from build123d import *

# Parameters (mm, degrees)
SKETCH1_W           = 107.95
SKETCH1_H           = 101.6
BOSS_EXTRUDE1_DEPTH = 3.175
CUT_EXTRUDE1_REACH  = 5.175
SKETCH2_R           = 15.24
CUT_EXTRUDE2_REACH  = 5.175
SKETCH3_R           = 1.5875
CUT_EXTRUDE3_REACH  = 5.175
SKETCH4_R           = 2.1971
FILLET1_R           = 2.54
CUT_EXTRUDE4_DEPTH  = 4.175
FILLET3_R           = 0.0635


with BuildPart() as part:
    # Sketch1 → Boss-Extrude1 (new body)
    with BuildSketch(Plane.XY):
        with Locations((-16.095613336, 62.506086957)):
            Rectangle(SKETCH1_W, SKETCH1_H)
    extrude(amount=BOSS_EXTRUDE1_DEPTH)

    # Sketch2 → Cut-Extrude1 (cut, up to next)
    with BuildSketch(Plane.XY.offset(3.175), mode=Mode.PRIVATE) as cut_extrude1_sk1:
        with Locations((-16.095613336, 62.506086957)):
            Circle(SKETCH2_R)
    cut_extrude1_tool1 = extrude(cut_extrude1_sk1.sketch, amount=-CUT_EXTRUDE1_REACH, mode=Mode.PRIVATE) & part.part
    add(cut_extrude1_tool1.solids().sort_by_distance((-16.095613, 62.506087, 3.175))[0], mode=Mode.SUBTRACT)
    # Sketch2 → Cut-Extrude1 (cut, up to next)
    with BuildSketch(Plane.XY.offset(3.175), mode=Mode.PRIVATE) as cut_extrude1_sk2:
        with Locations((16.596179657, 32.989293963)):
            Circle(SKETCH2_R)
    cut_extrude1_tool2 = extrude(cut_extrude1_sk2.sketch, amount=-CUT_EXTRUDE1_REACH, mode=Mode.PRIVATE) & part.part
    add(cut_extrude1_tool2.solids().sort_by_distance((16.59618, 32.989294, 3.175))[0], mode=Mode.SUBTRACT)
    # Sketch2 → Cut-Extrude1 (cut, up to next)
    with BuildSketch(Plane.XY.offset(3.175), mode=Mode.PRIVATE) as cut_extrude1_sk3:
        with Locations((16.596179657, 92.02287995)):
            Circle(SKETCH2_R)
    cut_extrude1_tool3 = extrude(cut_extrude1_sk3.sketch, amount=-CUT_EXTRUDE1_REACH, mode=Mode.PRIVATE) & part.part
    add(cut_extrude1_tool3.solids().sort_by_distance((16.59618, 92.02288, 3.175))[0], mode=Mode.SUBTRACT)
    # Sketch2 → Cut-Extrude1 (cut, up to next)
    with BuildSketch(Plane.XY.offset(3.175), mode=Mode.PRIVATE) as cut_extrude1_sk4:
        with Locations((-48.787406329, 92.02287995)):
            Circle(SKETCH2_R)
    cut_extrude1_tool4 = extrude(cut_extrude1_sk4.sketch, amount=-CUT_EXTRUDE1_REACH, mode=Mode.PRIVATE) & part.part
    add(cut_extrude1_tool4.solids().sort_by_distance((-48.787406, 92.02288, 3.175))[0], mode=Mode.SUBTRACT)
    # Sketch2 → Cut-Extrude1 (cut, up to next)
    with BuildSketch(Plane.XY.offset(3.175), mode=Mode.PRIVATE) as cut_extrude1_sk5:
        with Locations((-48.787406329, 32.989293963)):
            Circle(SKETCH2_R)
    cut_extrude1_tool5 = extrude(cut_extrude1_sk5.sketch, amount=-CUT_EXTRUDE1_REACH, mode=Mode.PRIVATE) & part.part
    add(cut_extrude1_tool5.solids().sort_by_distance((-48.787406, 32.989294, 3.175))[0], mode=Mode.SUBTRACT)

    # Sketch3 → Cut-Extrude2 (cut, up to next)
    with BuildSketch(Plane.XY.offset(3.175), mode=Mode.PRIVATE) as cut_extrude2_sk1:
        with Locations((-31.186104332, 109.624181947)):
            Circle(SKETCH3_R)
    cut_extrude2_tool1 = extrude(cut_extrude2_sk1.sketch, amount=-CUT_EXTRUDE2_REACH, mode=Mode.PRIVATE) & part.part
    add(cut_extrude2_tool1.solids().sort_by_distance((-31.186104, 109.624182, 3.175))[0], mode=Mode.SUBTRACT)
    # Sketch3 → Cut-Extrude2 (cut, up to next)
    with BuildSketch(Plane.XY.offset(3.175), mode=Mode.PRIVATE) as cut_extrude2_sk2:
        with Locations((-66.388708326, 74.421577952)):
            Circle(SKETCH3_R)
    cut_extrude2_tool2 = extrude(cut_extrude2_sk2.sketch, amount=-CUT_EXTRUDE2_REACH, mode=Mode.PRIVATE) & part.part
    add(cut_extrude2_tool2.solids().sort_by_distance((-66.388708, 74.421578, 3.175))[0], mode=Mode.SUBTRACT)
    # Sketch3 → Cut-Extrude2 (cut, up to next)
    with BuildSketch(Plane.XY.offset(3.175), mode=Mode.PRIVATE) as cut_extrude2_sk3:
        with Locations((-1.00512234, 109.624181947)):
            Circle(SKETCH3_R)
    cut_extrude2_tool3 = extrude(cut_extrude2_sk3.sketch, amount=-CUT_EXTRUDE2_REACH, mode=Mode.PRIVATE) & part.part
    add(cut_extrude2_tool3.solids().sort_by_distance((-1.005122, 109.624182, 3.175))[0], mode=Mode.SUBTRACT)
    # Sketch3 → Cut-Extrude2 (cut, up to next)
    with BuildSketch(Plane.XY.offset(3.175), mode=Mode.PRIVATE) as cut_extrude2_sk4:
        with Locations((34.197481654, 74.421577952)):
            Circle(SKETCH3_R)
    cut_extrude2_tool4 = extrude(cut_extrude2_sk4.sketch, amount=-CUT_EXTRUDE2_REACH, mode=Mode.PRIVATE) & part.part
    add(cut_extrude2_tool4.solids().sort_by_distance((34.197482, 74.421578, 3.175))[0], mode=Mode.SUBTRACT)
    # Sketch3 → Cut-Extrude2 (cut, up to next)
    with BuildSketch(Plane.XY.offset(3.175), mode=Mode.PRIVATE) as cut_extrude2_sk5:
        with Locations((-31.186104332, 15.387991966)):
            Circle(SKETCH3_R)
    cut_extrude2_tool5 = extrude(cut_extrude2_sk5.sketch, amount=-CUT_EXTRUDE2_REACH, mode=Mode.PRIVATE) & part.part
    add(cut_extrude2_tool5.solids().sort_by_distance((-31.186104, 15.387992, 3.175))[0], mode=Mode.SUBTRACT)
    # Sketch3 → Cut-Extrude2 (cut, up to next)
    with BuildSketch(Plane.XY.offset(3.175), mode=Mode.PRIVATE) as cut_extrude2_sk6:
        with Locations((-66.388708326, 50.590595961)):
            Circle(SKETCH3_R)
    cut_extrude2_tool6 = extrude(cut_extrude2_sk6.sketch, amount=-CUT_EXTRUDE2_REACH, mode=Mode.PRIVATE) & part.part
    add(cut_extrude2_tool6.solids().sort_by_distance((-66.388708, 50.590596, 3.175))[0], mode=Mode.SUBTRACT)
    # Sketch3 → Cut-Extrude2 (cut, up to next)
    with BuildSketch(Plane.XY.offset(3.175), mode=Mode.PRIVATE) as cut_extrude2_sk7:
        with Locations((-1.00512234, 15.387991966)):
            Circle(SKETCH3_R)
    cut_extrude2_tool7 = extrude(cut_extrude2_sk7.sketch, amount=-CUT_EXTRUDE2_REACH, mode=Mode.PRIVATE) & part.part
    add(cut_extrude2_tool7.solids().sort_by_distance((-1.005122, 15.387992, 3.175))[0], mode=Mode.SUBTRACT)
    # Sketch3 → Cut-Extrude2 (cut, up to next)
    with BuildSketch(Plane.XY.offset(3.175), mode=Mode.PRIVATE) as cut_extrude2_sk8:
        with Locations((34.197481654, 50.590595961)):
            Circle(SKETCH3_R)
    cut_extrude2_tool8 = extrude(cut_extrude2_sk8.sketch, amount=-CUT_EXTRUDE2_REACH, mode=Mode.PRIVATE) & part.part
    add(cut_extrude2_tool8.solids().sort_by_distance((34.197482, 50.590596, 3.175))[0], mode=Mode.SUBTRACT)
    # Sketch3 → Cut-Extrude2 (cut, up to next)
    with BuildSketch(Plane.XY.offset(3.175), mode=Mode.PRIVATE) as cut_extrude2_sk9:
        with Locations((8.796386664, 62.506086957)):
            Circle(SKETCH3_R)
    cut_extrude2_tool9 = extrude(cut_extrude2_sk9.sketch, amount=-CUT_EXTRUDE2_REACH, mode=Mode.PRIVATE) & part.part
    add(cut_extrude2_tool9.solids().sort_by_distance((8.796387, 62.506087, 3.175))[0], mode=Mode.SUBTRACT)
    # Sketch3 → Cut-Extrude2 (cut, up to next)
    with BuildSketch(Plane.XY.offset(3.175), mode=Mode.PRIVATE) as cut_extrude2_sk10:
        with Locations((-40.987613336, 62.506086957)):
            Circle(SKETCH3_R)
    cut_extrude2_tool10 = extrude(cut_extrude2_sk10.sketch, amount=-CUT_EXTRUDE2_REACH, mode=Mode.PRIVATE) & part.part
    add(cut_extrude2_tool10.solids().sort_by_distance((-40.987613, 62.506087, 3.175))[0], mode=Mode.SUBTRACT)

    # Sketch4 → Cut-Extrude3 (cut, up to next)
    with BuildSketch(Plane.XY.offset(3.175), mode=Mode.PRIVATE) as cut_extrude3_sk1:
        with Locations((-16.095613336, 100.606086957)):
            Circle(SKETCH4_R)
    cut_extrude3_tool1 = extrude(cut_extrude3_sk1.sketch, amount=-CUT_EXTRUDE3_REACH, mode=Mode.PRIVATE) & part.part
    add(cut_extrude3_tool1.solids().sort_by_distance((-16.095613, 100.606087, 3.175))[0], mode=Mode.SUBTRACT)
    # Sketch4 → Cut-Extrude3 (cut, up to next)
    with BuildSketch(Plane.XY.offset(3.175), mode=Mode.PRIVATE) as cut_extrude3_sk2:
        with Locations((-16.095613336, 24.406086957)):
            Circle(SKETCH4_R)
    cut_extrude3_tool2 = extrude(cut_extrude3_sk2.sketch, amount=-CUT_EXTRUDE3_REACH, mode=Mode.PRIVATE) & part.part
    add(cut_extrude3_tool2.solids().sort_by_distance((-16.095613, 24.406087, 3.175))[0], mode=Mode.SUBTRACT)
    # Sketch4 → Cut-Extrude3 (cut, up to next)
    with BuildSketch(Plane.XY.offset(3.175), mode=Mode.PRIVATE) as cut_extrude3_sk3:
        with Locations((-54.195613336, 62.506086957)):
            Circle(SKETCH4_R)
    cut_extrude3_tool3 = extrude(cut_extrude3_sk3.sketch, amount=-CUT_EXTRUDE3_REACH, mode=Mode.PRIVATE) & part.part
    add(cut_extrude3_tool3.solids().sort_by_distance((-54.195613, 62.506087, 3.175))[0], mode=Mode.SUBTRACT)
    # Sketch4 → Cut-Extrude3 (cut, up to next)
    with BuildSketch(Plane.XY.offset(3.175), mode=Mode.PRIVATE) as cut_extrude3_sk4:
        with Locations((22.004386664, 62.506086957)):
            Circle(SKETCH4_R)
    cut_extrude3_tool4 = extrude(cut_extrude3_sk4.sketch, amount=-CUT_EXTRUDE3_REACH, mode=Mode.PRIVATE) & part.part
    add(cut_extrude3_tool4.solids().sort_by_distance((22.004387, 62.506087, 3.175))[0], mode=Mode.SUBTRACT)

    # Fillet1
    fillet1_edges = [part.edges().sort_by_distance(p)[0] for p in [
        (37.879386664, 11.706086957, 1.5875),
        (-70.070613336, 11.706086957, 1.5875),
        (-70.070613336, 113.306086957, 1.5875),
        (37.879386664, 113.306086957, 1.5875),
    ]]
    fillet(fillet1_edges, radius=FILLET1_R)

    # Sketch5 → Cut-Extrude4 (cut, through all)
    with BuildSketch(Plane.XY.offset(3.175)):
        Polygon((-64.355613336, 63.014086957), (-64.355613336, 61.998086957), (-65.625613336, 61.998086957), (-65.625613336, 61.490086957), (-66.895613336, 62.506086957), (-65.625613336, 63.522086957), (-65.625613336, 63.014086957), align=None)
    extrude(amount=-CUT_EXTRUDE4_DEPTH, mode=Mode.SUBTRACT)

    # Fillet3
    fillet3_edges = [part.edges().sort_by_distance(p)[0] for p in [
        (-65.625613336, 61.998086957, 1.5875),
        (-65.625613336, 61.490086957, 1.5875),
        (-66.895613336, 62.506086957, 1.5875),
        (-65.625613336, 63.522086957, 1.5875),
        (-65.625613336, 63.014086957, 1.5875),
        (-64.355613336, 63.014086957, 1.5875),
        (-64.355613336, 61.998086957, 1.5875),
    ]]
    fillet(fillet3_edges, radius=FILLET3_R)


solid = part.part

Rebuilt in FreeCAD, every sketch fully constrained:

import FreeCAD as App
import Part
import Sketcher
Q = App.Units.Quantity


def edges_at(feature, points):
    """Names of the edges that pass closest to the given points."""
    edges = feature.Shape.Edges
    near = lambda p: min(range(len(edges)), key=lambda i: edges[i].distToShape(Part.Vertex(*p))[0])
    return sorted({f"Edge{near(p) + 1}" for p in points})

doc = App.newDocument("Part")
body = doc.addObject("PartDesign::Body", "Body")

# Sketch on XY plane
sketch1 = body.newObject("Sketcher::SketchObject", "Sketch")
sketch1.AttachmentSupport = (doc.getObject("XY_Plane"), [""])
sketch1.MapMode = "FlatFace"
sketch1.addGeometry([
    Part.LineSegment(App.Vector(-70, 113, 0), App.Vector(-70, 12, 0)),
    Part.LineSegment(App.Vector(-70, 12, 0), App.Vector(38, 12, 0)),
    Part.LineSegment(App.Vector(38, 12, 0), App.Vector(38, 113, 0)),
    Part.LineSegment(App.Vector(38, 113, 0), App.Vector(-70, 113, 0)),
], False)
sketch1.addConstraint([
    Sketcher.Constraint("Coincident", 0, 2, 1, 1),
    Sketcher.Constraint("Coincident", 1, 2, 2, 1),
    Sketcher.Constraint("Coincident", 2, 2, 3, 1),
    Sketcher.Constraint("Coincident", 3, 2, 0, 1),
    Sketcher.Constraint("Vertical", 0),
    Sketcher.Constraint("Horizontal", 1),
    Sketcher.Constraint("Vertical", 2),
    Sketcher.Constraint("Horizontal", 3),
    Sketcher.Constraint("DistanceY", 0, 2, 0, 1, Q("4 in")),
    Sketcher.Constraint("DistanceX", 1, 1, 1, 2, Q("4.25 in")),
    Sketcher.Constraint("DistanceX", 0, 2, -1, 1, Q("70.070613 mm")),
    Sketcher.Constraint("DistanceY", -1, 1, 0, 2, Q("11.706087 mm")),
])
pad1 = body.newObject("PartDesign::Pad", "Pad")
pad1.Profile = sketch1
pad1.Length = Q("0.125 in")

# Sketch on XY plane
sketch2 = body.newObject("Sketcher::SketchObject", "Sketch001")
sketch2.AttachmentSupport = (doc.getObject("XY_Plane"), [""])
sketch2.MapMode = "FlatFace"
sketch2.AttachmentOffset = App.Placement(App.Vector(0, 0, 0.125 * 25.4), App.Rotation())
sketch2.addGeometry(Part.Circle(App.Vector(-16, 63, 0), App.Vector(0, 0, 1), 15), False)
sketch2.addConstraint([
    Sketcher.Constraint("Diameter", 0, Q("1.2 in")),
    Sketcher.Constraint("DistanceX", 0, 3, -1, 1, Q("16.095613 mm")),
    Sketcher.Constraint("DistanceY", -1, 1, 0, 3, Q("62.506087 mm")),
])
pocket1 = body.newObject("PartDesign::Pocket", "Pocket")
pocket1.Profile = sketch2
pocket1.Type = "UpToFirst"

# Sketch on XY plane
sketch3 = body.newObject("Sketcher::SketchObject", "Sketch002")
sketch3.AttachmentSupport = (doc.getObject("XY_Plane"), [""])
sketch3.MapMode = "FlatFace"
sketch3.AttachmentOffset = App.Placement(App.Vector(0, 0, 0.125 * 25.4), App.Rotation())
sketch3.addGeometry(Part.Circle(App.Vector(17, 33, 0), App.Vector(0, 0, 1), 15), False)
sketch3.addConstraint([
    Sketcher.Constraint("Diameter", 0, Q("1.2 in")),
    Sketcher.Constraint("DistanceX", -1, 1, 0, 3, Q("16.59618 mm")),
    Sketcher.Constraint("DistanceY", -1, 1, 0, 3, Q("32.989294 mm")),
])
pocket2 = body.newObject("PartDesign::Pocket", "Pocket001")
pocket2.Profile = sketch3
pocket2.Type = "UpToFirst"

# Sketch on XY plane
sketch4 = body.newObject("Sketcher::SketchObject", "Sketch003")
sketch4.AttachmentSupport = (doc.getObject("XY_Plane"), [""])
sketch4.MapMode = "FlatFace"
sketch4.AttachmentOffset = App.Placement(App.Vector(0, 0, 0.125 * 25.4), App.Rotation())
sketch4.addGeometry(Part.Circle(App.Vector(17, 92, 0), App.Vector(0, 0, 1), 15), False)
sketch4.addConstraint([
    Sketcher.Constraint("Diameter", 0, Q("1.2 in")),
    Sketcher.Constraint("DistanceX", -1, 1, 0, 3, Q("16.59618 mm")),
    Sketcher.Constraint("DistanceY", -1, 1, 0, 3, Q("92.02288 mm")),
])
pocket3 = body.newObject("PartDesign::Pocket", "Pocket002")
pocket3.Profile = sketch4
pocket3.Type = "UpToFirst"

# Sketch on XY plane
sketch5 = body.newObject("Sketcher::SketchObject", "Sketch004")
sketch5.AttachmentSupport = (doc.getObject("XY_Plane"), [""])
sketch5.MapMode = "FlatFace"
sketch5.AttachmentOffset = App.Placement(App.Vector(0, 0, 0.125 * 25.4), App.Rotation())
sketch5.addGeometry(Part.Circle(App.Vector(-49, 92, 0), App.Vector(0, 0, 1), 15), False)
sketch5.addConstraint([
    Sketcher.Constraint("Diameter", 0, Q("1.2 in")),
    Sketcher.Constraint("DistanceY", -1, 1, 0, 3, Q("92.02288 mm")),
    Sketcher.Constraint("DistanceX", 0, 3, -1, 1, Q("48.787406 mm")),
])
pocket4 = body.newObject("PartDesign::Pocket", "Pocket003")
pocket4.Profile = sketch5
pocket4.Type = "UpToFirst"

# Sketch on XY plane
sketch6 = body.newObject("Sketcher::SketchObject", "Sketch005")
sketch6.AttachmentSupport = (doc.getObject("XY_Plane"), [""])
sketch6.MapMode = "FlatFace"
sketch6.AttachmentOffset = App.Placement(App.Vector(0, 0, 0.125 * 25.4), App.Rotation())
sketch6.addGeometry(Part.Circle(App.Vector(-49, 33, 0), App.Vector(0, 0, 1), 15), False)
sketch6.addConstraint([
    Sketcher.Constraint("Diameter", 0, Q("1.2 in")),
    Sketcher.Constraint("DistanceX", 0, 3, -1, 1, Q("48.787406 mm")),
    Sketcher.Constraint("DistanceY", -1, 1, 0, 3, Q("32.989294 mm")),
])
pocket5 = body.newObject("PartDesign::Pocket", "Pocket004")
pocket5.Profile = sketch6
pocket5.Type = "UpToFirst"

# Sketch on XY plane
sketch7 = body.newObject("Sketcher::SketchObject", "Sketch006")
sketch7.AttachmentSupport = (doc.getObject("XY_Plane"), [""])
sketch7.MapMode = "FlatFace"
sketch7.AttachmentOffset = App.Placement(App.Vector(0, 0, 0.125 * 25.4), App.Rotation())
sketch7.addGeometry(Part.Circle(App.Vector(-31.2, 109.6, 0), App.Vector(0, 0, 1), 1.6), False)
sketch7.addConstraint([
    Sketcher.Constraint("Diameter", 0, Q("0.125 in")),
    Sketcher.Constraint("DistanceY", -1, 1, 0, 3, Q("109.624182 mm")),
    Sketcher.Constraint("DistanceX", 0, 3, -1, 1, Q("31.186104 mm")),
])
pocket6 = body.newObject("PartDesign::Pocket", "Pocket005")
pocket6.Profile = sketch7
pocket6.Type = "UpToFirst"

# Sketch on XY plane
sketch8 = body.newObject("Sketcher::SketchObject", "Sketch007")
sketch8.AttachmentSupport = (doc.getObject("XY_Plane"), [""])
sketch8.MapMode = "FlatFace"
sketch8.AttachmentOffset = App.Placement(App.Vector(0, 0, 0.125 * 25.4), App.Rotation())
sketch8.addGeometry(Part.Circle(App.Vector(-66.4, 74.4, 0), App.Vector(0, 0, 1), 1.6), False)
sketch8.addConstraint([
    Sketcher.Constraint("Diameter", 0, Q("0.125 in")),
    Sketcher.Constraint("DistanceX", 0, 3, -1, 1, Q("66.388708 mm")),
    Sketcher.Constraint("DistanceY", -1, 1, 0, 3, Q("74.421578 mm")),
])
pocket7 = body.newObject("PartDesign::Pocket", "Pocket006")
pocket7.Profile = sketch8
pocket7.Type = "UpToFirst"

# Sketch on XY plane
sketch9 = body.newObject("Sketcher::SketchObject", "Sketch008")
sketch9.AttachmentSupport = (doc.getObject("XY_Plane"), [""])
sketch9.MapMode = "FlatFace"
sketch9.AttachmentOffset = App.Placement(App.Vector(0, 0, 0.125 * 25.4), App.Rotation())
sketch9.addGeometry(Part.Circle(App.Vector(-1, 109.6, 0), App.Vector(0, 0, 1), 1.6), False)
sketch9.addConstraint([
    Sketcher.Constraint("Diameter", 0, Q("0.125 in")),
    Sketcher.Constraint("DistanceY", -1, 1, 0, 3, Q("109.624182 mm")),
    Sketcher.Constraint("DistanceX", 0, 3, -1, 1, Q("1.005122 mm")),
])
pocket8 = body.newObject("PartDesign::Pocket", "Pocket007")
pocket8.Profile = sketch9
pocket8.Type = "UpToFirst"

# Sketch on XY plane
sketch10 = body.newObject("Sketcher::SketchObject", "Sketch009")
sketch10.AttachmentSupport = (doc.getObject("XY_Plane"), [""])
sketch10.MapMode = "FlatFace"
sketch10.AttachmentOffset = App.Placement(App.Vector(0, 0, 0.125 * 25.4), App.Rotation())
sketch10.addGeometry(Part.Circle(App.Vector(34.2, 74.4, 0), App.Vector(0, 0, 1), 1.6), False)
sketch10.addConstraint([
    Sketcher.Constraint("Diameter", 0, Q("0.125 in")),
    Sketcher.Constraint("DistanceX", -1, 1, 0, 3, Q("34.197482 mm")),
    Sketcher.Constraint("DistanceY", -1, 1, 0, 3, Q("74.421578 mm")),
])
pocket9 = body.newObject("PartDesign::Pocket", "Pocket008")
pocket9.Profile = sketch10
pocket9.Type = "UpToFirst"

# Sketch on XY plane
sketch11 = body.newObject("Sketcher::SketchObject", "Sketch010")
sketch11.AttachmentSupport = (doc.getObject("XY_Plane"), [""])
sketch11.MapMode = "FlatFace"
sketch11.AttachmentOffset = App.Placement(App.Vector(0, 0, 0.125 * 25.4), App.Rotation())
sketch11.addGeometry(Part.Circle(App.Vector(-31.2, 15.4, 0), App.Vector(0, 0, 1), 1.6), False)
sketch11.addConstraint([
    Sketcher.Constraint("Diameter", 0, Q("0.125 in")),
    Sketcher.Constraint("DistanceY", -1, 1, 0, 3, Q("15.387992 mm")),
    Sketcher.Constraint("DistanceX", 0, 3, -1, 1, Q("31.186104 mm")),
])
pocket10 = body.newObject("PartDesign::Pocket", "Pocket009")
pocket10.Profile = sketch11
pocket10.Type = "UpToFirst"

# Sketch on XY plane
sketch12 = body.newObject("Sketcher::SketchObject", "Sketch011")
sketch12.AttachmentSupport = (doc.getObject("XY_Plane"), [""])
sketch12.MapMode = "FlatFace"
sketch12.AttachmentOffset = App.Placement(App.Vector(0, 0, 0.125 * 25.4), App.Rotation())
sketch12.addGeometry(Part.Circle(App.Vector(-66.4, 50.6, 0), App.Vector(0, 0, 1), 1.6), False)
sketch12.addConstraint([
    Sketcher.Constraint("Diameter", 0, Q("0.125 in")),
    Sketcher.Constraint("DistanceX", 0, 3, -1, 1, Q("66.388708 mm")),
    Sketcher.Constraint("DistanceY", -1, 1, 0, 3, Q("50.590596 mm")),
])
pocket11 = body.newObject("PartDesign::Pocket", "Pocket010")
pocket11.Profile = sketch12
pocket11.Type = "UpToFirst"

# Sketch on XY plane
sketch13 = body.newObject("Sketcher::SketchObject", "Sketch012")
sketch13.AttachmentSupport = (doc.getObject("XY_Plane"), [""])
sketch13.MapMode = "FlatFace"
sketch13.AttachmentOffset = App.Placement(App.Vector(0, 0, 0.125 * 25.4), App.Rotation())
sketch13.addGeometry(Part.Circle(App.Vector(-1, 15.4, 0), App.Vector(0, 0, 1), 1.6), False)
sketch13.addConstraint([
    Sketcher.Constraint("Diameter", 0, Q("0.125 in")),
    Sketcher.Constraint("DistanceY", -1, 1, 0, 3, Q("15.387992 mm")),
    Sketcher.Constraint("DistanceX", 0, 3, -1, 1, Q("1.005122 mm")),
])
pocket12 = body.newObject("PartDesign::Pocket", "Pocket011")
pocket12.Profile = sketch13
pocket12.Type = "UpToFirst"

# Sketch on XY plane
sketch14 = body.newObject("Sketcher::SketchObject", "Sketch013")
sketch14.AttachmentSupport = (doc.getObject("XY_Plane"), [""])
sketch14.MapMode = "FlatFace"
sketch14.AttachmentOffset = App.Placement(App.Vector(0, 0, 0.125 * 25.4), App.Rotation())
sketch14.addGeometry(Part.Circle(App.Vector(34.2, 50.6, 0), App.Vector(0, 0, 1), 1.6), False)
sketch14.addConstraint([
    Sketcher.Constraint("Diameter", 0, Q("0.125 in")),
    Sketcher.Constraint("DistanceX", -1, 1, 0, 3, Q("34.197482 mm")),
    Sketcher.Constraint("DistanceY", -1, 1, 0, 3, Q("50.590596 mm")),
])
pocket13 = body.newObject("PartDesign::Pocket", "Pocket012")
pocket13.Profile = sketch14
pocket13.Type = "UpToFirst"

# Sketch on XY plane
sketch15 = body.newObject("Sketcher::SketchObject", "Sketch014")
sketch15.AttachmentSupport = (doc.getObject("XY_Plane"), [""])
sketch15.MapMode = "FlatFace"
sketch15.AttachmentOffset = App.Placement(App.Vector(0, 0, 0.125 * 25.4), App.Rotation())
sketch15.addGeometry(Part.Circle(App.Vector(8.8, 62.5, 0), App.Vector(0, 0, 1), 1.6), False)
sketch15.addConstraint([
    Sketcher.Constraint("Diameter", 0, Q("0.125 in")),
    Sketcher.Constraint("DistanceX", -1, 1, 0, 3, Q("8.796387 mm")),
    Sketcher.Constraint("DistanceY", -1, 1, 0, 3, Q("62.506087 mm")),
])
pocket14 = body.newObject("PartDesign::Pocket", "Pocket013")
pocket14.Profile = sketch15
pocket14.Type = "UpToFirst"

# Sketch on XY plane
sketch16 = body.newObject("Sketcher::SketchObject", "Sketch015")
sketch16.AttachmentSupport = (doc.getObject("XY_Plane"), [""])
sketch16.MapMode = "FlatFace"
sketch16.AttachmentOffset = App.Placement(App.Vector(0, 0, 0.125 * 25.4), App.Rotation())
sketch16.addGeometry(Part.Circle(App.Vector(-41, 62.5, 0), App.Vector(0, 0, 1), 1.6), False)
sketch16.addConstraint([
    Sketcher.Constraint("Diameter", 0, Q("0.125 in")),
    Sketcher.Constraint("DistanceX", 0, 3, -1, 1, Q("40.987613 mm")),
    Sketcher.Constraint("DistanceY", -1, 1, 0, 3, Q("62.506087 mm")),
])
pocket15 = body.newObject("PartDesign::Pocket", "Pocket014")
pocket15.Profile = sketch16
pocket15.Type = "UpToFirst"

# Sketch on XY plane
sketch17 = body.newObject("Sketcher::SketchObject", "Sketch016")
sketch17.AttachmentSupport = (doc.getObject("XY_Plane"), [""])
sketch17.MapMode = "FlatFace"
sketch17.AttachmentOffset = App.Placement(App.Vector(0, 0, 0.125 * 25.4), App.Rotation())
sketch17.addGeometry(Part.Circle(App.Vector(-16.1, 100.6, 0), App.Vector(0, 0, 1), 2.2), False)
sketch17.addConstraint([
    Sketcher.Constraint("Diameter", 0, Q("0.173 in")),
    Sketcher.Constraint("DistanceX", 0, 3, -1, 1, Q("16.095613 mm")),
    Sketcher.Constraint("DistanceY", -1, 1, 0, 3, Q("100.606087 mm")),
])
pocket16 = body.newObject("PartDesign::Pocket", "Pocket015")
pocket16.Profile = sketch17
pocket16.Type = "UpToFirst"

# Sketch on XY plane
sketch18 = body.newObject("Sketcher::SketchObject", "Sketch017")
sketch18.AttachmentSupport = (doc.getObject("XY_Plane"), [""])
sketch18.MapMode = "FlatFace"
sketch18.AttachmentOffset = App.Placement(App.Vector(0, 0, 0.125 * 25.4), App.Rotation())
sketch18.addGeometry(Part.Circle(App.Vector(-16.1, 24.4, 0), App.Vector(0, 0, 1), 2.2), False)
sketch18.addConstraint([
    Sketcher.Constraint("Diameter", 0, Q("0.173 in")),
    Sketcher.Constraint("DistanceX", 0, 3, -1, 1, Q("16.095613 mm")),
    Sketcher.Constraint("DistanceY", -1, 1, 0, 3, Q("24.406087 mm")),
])
pocket17 = body.newObject("PartDesign::Pocket", "Pocket016")
pocket17.Profile = sketch18
pocket17.Type = "UpToFirst"

# Sketch on XY plane
sketch19 = body.newObject("Sketcher::SketchObject", "Sketch018")
sketch19.AttachmentSupport = (doc.getObject("XY_Plane"), [""])
sketch19.MapMode = "FlatFace"
sketch19.AttachmentOffset = App.Placement(App.Vector(0, 0, 0.125 * 25.4), App.Rotation())
sketch19.addGeometry(Part.Circle(App.Vector(-54.2, 62.5, 0), App.Vector(0, 0, 1), 2.2), False)
sketch19.addConstraint([
    Sketcher.Constraint("Diameter", 0, Q("0.173 in")),
    Sketcher.Constraint("DistanceX", 0, 3, -1, 1, Q("54.195613 mm")),
    Sketcher.Constraint("DistanceY", -1, 1, 0, 3, Q("62.506087 mm")),
])
pocket18 = body.newObject("PartDesign::Pocket", "Pocket017")
pocket18.Profile = sketch19
pocket18.Type = "UpToFirst"

# Sketch on XY plane
sketch20 = body.newObject("Sketcher::SketchObject", "Sketch019")
sketch20.AttachmentSupport = (doc.getObject("XY_Plane"), [""])
sketch20.MapMode = "FlatFace"
sketch20.AttachmentOffset = App.Placement(App.Vector(0, 0, 0.125 * 25.4), App.Rotation())
sketch20.addGeometry(Part.Circle(App.Vector(22, 62.5, 0), App.Vector(0, 0, 1), 2.2), False)
sketch20.addConstraint([
    Sketcher.Constraint("Diameter", 0, Q("0.173 in")),
    Sketcher.Constraint("DistanceX", -1, 1, 0, 3, Q("22.004387 mm")),
    Sketcher.Constraint("DistanceY", -1, 1, 0, 3, Q("62.506087 mm")),
])
pocket19 = body.newObject("PartDesign::Pocket", "Pocket018")
pocket19.Profile = sketch20
pocket19.Type = "UpToFirst"
doc.recompute()

fillet = body.newObject("PartDesign::Fillet", "Fillet")
fillet.Base = (pocket19, edges_at(pocket19, [
    (37.879, 11.706, 1.587),
    (-70.071, 11.706, 1.587),
    (-70.071, 113.306, 1.587),
    (37.879, 113.306, 1.587),
]))
fillet.Radius = Q("0.1 in")

# Sketch on XY plane
sketch21 = body.newObject("Sketcher::SketchObject", "Sketch020")
sketch21.AttachmentSupport = (doc.getObject("XY_Plane"), [""])
sketch21.MapMode = "FlatFace"
sketch21.AttachmentOffset = App.Placement(App.Vector(0, 0, 0.125 * 25.4), App.Rotation())
sketch21.addGeometry([
    Part.LineSegment(App.Vector(-64.4, 62, 0), App.Vector(-64.4, 63, 0)),  # 0
    Part.LineSegment(App.Vector(-64.4, 63, 0), App.Vector(-65.6, 63, 0)),  # 1
    Part.LineSegment(App.Vector(-65.6, 63, 0), App.Vector(-65.6, 63.5, 0)),  # 2
    Part.LineSegment(App.Vector(-65.6, 63.5, 0), App.Vector(-66.9, 62.5, 0)),  # 3
    Part.LineSegment(App.Vector(-66.9, 62.5, 0), App.Vector(-65.6, 61.5, 0)),  # 4
    Part.LineSegment(App.Vector(-65.6, 61.5, 0), App.Vector(-65.6, 62, 0)),  # 5
    Part.LineSegment(App.Vector(-65.6, 62, 0), App.Vector(-64.4, 62, 0)),  # 6
], False)
sketch21.addConstraint([
    Sketcher.Constraint("Coincident", 0, 2, 1, 1),
    Sketcher.Constraint("Coincident", 1, 2, 2, 1),
    Sketcher.Constraint("Coincident", 2, 2, 3, 1),
    Sketcher.Constraint("Coincident", 3, 2, 4, 1),
    Sketcher.Constraint("Coincident", 4, 2, 5, 1),
    Sketcher.Constraint("Coincident", 5, 2, 6, 1),
    Sketcher.Constraint("Coincident", 6, 2, 0, 1),
    Sketcher.Constraint("Vertical", 0),
    Sketcher.Constraint("Horizontal", 1),
    Sketcher.Constraint("Vertical", 2),
    Sketcher.Constraint("Vertical", 5),
    Sketcher.Constraint("Horizontal", 6),
    Sketcher.Constraint("Vertical", 2, 2, 4, 2),
    Sketcher.Constraint("Equal", 2, 5),
    Sketcher.Constraint("Equal", 3, 4),
    Sketcher.Constraint("DistanceX", 1, 2, 1, 1, Q("0.05 in")),
    Sketcher.Constraint("DistanceY", 0, 1, 0, 2, Q("0.04 in")),
    Sketcher.Constraint("DistanceY", 2, 1, 2, 2, Q("0.02 in")),
    Sketcher.Constraint("DistanceX", 3, 2, 0, 2, Q("0.1 in")),
    Sketcher.Constraint("DistanceX", 0, 2, -1, 1, Q("64.355613 mm")),
    Sketcher.Constraint("DistanceY", -1, 1, 0, 2, Q("63.014087 mm")),
])
pocket20 = body.newObject("PartDesign::Pocket", "Pocket019")
pocket20.Profile = sketch21
pocket20.Type = "ThroughAll"
doc.recompute()

fillet2 = body.newObject("PartDesign::Fillet", "Fillet001")
fillet2.Base = (pocket20, edges_at(pocket20, [
    (-65.626, 61.998, 1.587),
    (-65.626, 61.49, 1.587),
    (-66.896, 62.506, 1.587),
    (-65.626, 63.522, 1.587),
    (-65.626, 63.014, 1.587),
    (-64.356, 63.014, 1.587),
    (-64.356, 61.998, 1.587),
]))
fillet2.Radius = Q("0.0025 in")

doc.recompute()
